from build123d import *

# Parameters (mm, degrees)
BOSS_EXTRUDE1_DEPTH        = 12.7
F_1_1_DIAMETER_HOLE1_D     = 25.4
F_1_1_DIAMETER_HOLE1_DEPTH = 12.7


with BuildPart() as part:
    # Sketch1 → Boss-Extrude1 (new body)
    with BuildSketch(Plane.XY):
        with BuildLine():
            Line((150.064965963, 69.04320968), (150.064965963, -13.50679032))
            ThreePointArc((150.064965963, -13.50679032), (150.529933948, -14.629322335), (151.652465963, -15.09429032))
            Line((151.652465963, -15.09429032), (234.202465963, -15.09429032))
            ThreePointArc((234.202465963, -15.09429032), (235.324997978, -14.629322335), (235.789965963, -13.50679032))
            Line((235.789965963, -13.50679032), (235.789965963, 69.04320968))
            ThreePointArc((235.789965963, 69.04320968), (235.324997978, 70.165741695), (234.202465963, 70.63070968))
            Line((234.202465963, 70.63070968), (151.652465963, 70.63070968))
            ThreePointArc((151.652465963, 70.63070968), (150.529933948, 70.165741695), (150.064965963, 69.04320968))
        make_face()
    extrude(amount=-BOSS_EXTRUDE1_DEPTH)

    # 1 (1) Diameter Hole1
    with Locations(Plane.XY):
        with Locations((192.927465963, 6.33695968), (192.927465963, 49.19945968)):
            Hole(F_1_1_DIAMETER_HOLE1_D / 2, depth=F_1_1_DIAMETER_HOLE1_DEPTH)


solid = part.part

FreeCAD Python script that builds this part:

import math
import FreeCAD as App
import Part
import Sketcher

V = App.Vector
Q = App.Units.Quantity

doc = App.newDocument("Part")
params = doc.addObject("Spreadsheet::Sheet", "Params")
for row, (alias, value) in enumerate([
    ("sketch1_radius", "0.0625 in"),
    ("sketch1_width", "3.25 in"),
    ("pad1_length", "0.5 in"),
    ("sketch2_diameter", "1 in"),
    ("hole_diameter", "1 in"),
    ("hole_depth", "0.5 in"),
], start=1):
    params.set(f"A{row}", alias)
    params.set(f"B{row}", "=" + value)
    params.setAlias(f"B{row}", alias)

body = doc.addObject("PartDesign::Body", "Body")

# Sketch on XY plane
sketch1 = body.newObject("Sketcher::SketchObject", "Sketch")
sketch1.AttachmentSupport = (doc.getObject("XY_Plane"), [""])
sketch1.MapMode = "FlatFace"
sketch1.addGeometry([
    Part.LineSegment(V(150.1, 69, 0), V(150.1, -13.5, 0)),  # 0
    Part.ArcOfCircle(Part.Circle(V(151.7, -13.5, 0), V(0, 0, 1), 1.6), math.radians(180), math.radians(270)),  # 1
    Part.LineSegment(V(151.7, -15.1, 0), V(234.2, -15.1, 0)),  # 2
    Part.ArcOfCircle(Part.Circle(V(234.2, -13.5, 0), V(0, 0, 1), 1.6), math.radians(-90), math.radians(0)),  # 3
    Part.LineSegment(V(235.8, -13.5, 0), V(235.8, 69, 0)),  # 4
    Part.ArcOfCircle(Part.Circle(V(234.2, 69, 0), V(0, 0, 1), 1.6), math.radians(0), math.radians(90)),  # 5
    Part.LineSegment(V(234.2, 70.6, 0), V(151.7, 70.6, 0)),  # 6
    Part.ArcOfCircle(Part.Circle(V(151.7, 69, 0), V(0, 0, 1), 1.6), math.radians(90), math.radians(180)),  # 7
], False)
sketch1.addConstraint([
    Sketcher.Constraint("Tangent", 0, 2, 1, 1),
    Sketcher.Constraint("Tangent", 1, 2, 2, 1),
    Sketcher.Constraint("Tangent", 2, 2, 3, 1),
    Sketcher.Constraint("Tangent", 3, 2, 4, 1),
    Sketcher.Constraint("Tangent", 4, 2, 5, 1),
    Sketcher.Constraint("Tangent", 5, 2, 6, 1),
    Sketcher.Constraint("Tangent", 6, 2, 7, 1),
    Sketcher.Constraint("Tangent", 7, 2, 0, 1),
    Sketcher.Constraint("Vertical", 0),
    Sketcher.Constraint("Horizontal", 2),
    Sketcher.Constraint("Vertical", 4),
    Sketcher.Constraint("Horizontal", 6),
    Sketcher.Constraint("Equal", 1, 3),
    Sketcher.Constraint("Equal", 3, 5),
    Sketcher.Constraint("Equal", 5, 7),
    Sketcher.Constraint("Equal", 6, 0),
    Sketcher.Constraint("Radius", 1, Q("0.0625 in")),
    Sketcher.Constraint("DistanceX", 2, 1, 2, 2, Q("3.25 in")),
    Sketcher.Constraint("DistanceY", 1, 3, -1, 1, Q("13.50679 mm")),
    Sketcher.Constraint("DistanceX", -1, 1, 1, 3, Q("151.652466 mm")),
])
sketch1.setExpression("Constraints[16]", "Params.sketch1_radius")
sketch1.setExpression("Constraints[17]", "Params.sketch1_width")
pad1 = body.newObject("PartDesign::Pad", "Pad")
pad1.Profile = sketch1
pad1.setExpression("Length", "Params.pad1_length")
pad1.Reversed = True

# Sketch on XY plane
sketch2 = body.newObject("Sketcher::SketchObject", "Sketch001")
sketch2.AttachmentSupport = (doc.getObject("XY_Plane"), [""])
sketch2.MapMode = "FlatFace"
sketch2.addGeometry([
    Part.Circle(V(193, 6, 0), V(0, 0, 1), 13),
    Part.Circle(V(193, 49, 0), V(0, 0, 1), 13),
], False)
sketch2.addConstraint([
    Sketcher.Constraint("Equal", 0, 1),
    Sketcher.Constraint("Vertical", 0, 3, 1, 3),
    Sketcher.Constraint("Diameter", 0, Q("1 in")),
    Sketcher.Constraint("DistanceY", 0, 3, 1, 3, Q("1.6875 in")),
    Sketcher.Constraint("DistanceY", -1, 1, 0, 3, Q("6.33696 mm")),
    Sketcher.Constraint("DistanceX", -1, 1, 0, 3, Q("192.927466 mm")),
])
sketch2.setExpression("Constraints[2]", "Params.sketch2_diameter")
doc.recompute()
hole = body.newObject("PartDesign::Hole", "Hole")
hole.Profile = sketch2
hole.ThreadType = "None"
hole.setExpression("Diameter", "Params.hole_diameter")
hole.DepthType = "Dimension"
hole.setExpression("Depth", "Params.hole_depth")
hole.DrillPoint = "Flat"

doc.recompute()
